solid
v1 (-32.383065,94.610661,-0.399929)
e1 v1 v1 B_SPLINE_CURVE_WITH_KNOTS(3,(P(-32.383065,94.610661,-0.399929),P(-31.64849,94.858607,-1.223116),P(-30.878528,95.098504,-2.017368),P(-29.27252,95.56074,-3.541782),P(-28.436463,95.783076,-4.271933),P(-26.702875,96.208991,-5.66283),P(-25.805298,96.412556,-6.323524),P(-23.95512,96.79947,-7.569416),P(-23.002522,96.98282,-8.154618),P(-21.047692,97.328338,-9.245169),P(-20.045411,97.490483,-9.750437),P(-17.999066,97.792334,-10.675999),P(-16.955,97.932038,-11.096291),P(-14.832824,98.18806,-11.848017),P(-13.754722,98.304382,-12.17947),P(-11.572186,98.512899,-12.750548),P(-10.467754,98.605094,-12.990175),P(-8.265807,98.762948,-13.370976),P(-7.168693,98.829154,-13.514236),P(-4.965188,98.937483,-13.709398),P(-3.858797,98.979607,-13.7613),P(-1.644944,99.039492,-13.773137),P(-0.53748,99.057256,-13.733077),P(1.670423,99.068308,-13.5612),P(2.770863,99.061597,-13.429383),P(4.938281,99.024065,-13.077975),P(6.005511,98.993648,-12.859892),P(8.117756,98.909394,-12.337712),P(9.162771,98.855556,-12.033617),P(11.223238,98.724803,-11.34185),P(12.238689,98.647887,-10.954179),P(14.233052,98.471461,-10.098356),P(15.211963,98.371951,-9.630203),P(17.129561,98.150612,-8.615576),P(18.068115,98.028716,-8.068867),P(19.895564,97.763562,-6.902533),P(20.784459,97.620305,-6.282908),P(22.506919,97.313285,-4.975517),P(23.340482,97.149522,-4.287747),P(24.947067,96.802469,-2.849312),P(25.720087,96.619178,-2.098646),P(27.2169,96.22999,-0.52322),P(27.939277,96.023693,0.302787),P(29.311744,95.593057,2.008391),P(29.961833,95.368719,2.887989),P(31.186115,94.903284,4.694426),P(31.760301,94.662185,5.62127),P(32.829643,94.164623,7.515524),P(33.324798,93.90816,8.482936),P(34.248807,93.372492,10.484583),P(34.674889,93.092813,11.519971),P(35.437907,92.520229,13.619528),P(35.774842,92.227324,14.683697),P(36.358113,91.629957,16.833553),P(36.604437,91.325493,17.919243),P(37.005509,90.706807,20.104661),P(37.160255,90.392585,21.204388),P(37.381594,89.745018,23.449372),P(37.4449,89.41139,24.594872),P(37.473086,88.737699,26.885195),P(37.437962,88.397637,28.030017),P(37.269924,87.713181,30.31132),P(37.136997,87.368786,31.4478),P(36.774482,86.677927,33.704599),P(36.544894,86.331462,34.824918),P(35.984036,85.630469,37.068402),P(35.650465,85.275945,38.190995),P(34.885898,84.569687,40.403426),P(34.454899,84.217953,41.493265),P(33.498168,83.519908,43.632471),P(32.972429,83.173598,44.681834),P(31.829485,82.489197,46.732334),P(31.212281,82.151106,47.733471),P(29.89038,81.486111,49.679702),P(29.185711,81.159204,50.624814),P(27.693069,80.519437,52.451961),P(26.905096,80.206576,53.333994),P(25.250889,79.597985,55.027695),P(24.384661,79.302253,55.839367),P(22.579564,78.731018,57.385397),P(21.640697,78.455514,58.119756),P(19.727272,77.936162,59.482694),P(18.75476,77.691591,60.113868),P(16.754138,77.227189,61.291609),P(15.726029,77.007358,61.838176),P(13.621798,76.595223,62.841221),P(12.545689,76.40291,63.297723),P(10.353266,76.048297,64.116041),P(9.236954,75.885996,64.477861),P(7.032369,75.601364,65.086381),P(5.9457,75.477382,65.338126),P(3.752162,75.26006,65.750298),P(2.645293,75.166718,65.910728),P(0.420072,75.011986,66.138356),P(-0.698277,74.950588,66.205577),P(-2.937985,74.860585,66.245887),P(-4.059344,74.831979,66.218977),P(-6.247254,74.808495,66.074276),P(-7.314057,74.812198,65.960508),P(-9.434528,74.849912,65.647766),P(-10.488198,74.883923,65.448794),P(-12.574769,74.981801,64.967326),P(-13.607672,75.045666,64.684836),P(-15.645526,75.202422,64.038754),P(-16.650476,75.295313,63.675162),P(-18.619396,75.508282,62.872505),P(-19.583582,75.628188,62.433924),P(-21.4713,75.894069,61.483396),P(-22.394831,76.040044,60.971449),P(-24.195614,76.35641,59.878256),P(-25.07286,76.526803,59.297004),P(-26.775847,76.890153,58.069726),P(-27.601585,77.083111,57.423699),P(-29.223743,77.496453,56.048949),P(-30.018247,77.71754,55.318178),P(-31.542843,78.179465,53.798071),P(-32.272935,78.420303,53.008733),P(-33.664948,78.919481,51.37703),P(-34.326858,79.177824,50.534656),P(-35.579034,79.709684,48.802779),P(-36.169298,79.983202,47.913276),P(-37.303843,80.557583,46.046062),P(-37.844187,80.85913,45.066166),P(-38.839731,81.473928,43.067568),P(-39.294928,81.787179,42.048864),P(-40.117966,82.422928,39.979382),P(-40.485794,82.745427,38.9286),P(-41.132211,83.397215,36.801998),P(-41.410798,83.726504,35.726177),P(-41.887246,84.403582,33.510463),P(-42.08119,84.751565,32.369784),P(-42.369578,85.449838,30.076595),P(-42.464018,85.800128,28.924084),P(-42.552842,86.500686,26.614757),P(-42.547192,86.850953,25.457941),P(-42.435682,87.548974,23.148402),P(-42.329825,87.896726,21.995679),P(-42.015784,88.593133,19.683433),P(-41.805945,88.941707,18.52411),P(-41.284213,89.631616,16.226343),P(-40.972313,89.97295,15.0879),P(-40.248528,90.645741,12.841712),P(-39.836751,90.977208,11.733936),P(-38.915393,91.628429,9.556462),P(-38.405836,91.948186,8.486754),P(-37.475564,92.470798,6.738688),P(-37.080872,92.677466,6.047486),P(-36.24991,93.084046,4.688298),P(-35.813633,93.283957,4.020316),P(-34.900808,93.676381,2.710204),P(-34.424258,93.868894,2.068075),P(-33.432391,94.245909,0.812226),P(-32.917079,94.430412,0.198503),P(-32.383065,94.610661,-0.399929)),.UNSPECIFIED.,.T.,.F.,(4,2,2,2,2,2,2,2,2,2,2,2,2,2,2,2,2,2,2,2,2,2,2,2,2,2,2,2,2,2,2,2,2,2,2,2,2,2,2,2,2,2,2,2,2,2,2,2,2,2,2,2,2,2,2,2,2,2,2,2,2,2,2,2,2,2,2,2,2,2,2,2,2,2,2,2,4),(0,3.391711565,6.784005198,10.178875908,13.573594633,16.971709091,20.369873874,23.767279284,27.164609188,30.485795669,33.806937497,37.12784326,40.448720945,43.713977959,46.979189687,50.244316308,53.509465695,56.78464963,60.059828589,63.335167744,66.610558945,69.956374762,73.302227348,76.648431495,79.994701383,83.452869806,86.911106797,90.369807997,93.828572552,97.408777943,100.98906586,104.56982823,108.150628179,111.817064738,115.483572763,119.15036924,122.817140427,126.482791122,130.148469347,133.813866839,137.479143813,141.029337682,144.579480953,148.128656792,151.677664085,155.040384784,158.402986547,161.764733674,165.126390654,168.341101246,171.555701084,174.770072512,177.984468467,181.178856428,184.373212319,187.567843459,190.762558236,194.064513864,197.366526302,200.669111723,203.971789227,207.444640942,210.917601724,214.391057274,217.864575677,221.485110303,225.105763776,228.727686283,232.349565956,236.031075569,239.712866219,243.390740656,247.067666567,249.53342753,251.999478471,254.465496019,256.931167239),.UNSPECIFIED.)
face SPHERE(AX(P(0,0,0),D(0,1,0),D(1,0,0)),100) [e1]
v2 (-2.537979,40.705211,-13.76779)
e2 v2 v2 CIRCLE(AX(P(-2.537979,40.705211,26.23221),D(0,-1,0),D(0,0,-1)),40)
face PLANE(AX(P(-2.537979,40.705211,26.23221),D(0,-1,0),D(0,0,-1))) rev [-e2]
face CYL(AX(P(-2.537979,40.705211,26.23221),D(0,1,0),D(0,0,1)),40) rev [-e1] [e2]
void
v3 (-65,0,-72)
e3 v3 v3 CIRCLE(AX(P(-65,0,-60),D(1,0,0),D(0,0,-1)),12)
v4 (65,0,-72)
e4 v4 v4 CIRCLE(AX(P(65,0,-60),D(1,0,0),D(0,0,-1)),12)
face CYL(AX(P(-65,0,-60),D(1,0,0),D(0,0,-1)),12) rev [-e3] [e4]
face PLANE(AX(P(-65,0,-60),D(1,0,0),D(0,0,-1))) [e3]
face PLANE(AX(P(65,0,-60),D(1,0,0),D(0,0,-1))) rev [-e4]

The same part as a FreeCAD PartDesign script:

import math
import FreeCAD as App
import Part
import Sketcher
from FreeCAD import Vector
Q = App.Units.Quantity

doc = App.newDocument("Part")
body = doc.addObject("PartDesign::Body", "Body")

# Sketch on XY plane
sketch1 = doc.addObject("Sketcher::SketchObject", "Sketch")
body.addObject(sketch1)
sketch1.AttachmentSupport = (doc.XY_Plane, [""])
sketch1.MapMode = "FlatFace"
sketch1.addGeometry([
    Part.LineSegment(Vector(0, -100, 0), Vector(0, 100, 0)),
    Part.ArcOfCircle(Part.Circle(Vector(0, 0, 0), Vector(0, 0, 1), 100), math.radians(90), math.radians(270)),
], False)
sketch1.addConstraint([
    Sketcher.Constraint("Coincident", 0, 1, 1, 2),
    Sketcher.Constraint("Coincident", 1, 1, 0, 2),
    Sketcher.Constraint("Vertical", 0),
    Sketcher.Constraint("Coincident", 1, 3, -1, 1),
    Sketcher.Constraint("PointOnObject", 0, 1, -2),
    Sketcher.Constraint("Radius", 1, Q("100 mm")),
])
revolution = doc.addObject("PartDesign::Revolution", "Revolution")
body.addObject(revolution)
revolution.Profile = sketch1
revolution.ReferenceAxis = (sketch1, ["V_Axis"])
revolution.Angle = 360

# Sketch on XZ plane
sketch2 = doc.addObject("Sketcher::SketchObject", "Sketch001")
body.addObject(sketch2)
sketch2.AttachmentSupport = (doc.XZ_Plane, [""])
sketch2.MapMode = "FlatFace"
sketch2.AttachmentOffset = App.Placement(Vector(0, 0, -100), App.Rotation())
sketch2.addGeometry(Part.Circle(Vector(-3, 26, 0), Vector(0, 0, 1), 40), False)
sketch2.addConstraint([
    Sketcher.Constraint("Diameter", 0, Q("80 mm")),
    Sketcher.Constraint("DistanceX", 0, 3, -1, 1, Q("2.537979 mm")),
    Sketcher.Constraint("DistanceY", -1, 1, 0, 3, Q("26.23221 mm")),
])
pocket1 = doc.addObject("PartDesign::Pocket", "Pocket")
body.addObject(pocket1)
pocket1.Profile = sketch2
pocket1.Length = 59.294789
pocket1.Reversed = True

# Sketch on YZ plane
sketch3 = doc.addObject("Sketcher::SketchObject", "Sketch002")
body.addObject(sketch3)
sketch3.AttachmentSupport = (doc.YZ_Plane, [""])
sketch3.MapMode = "FlatFace"
sketch3.addGeometry(Part.Circle(Vector(0, -60, 0), Vector(0, 0, 1), 12), False)
sketch3.addConstraint([
    Sketcher.Constraint("PointOnObject", 0, 3, -2),
    Sketcher.Constraint("Diameter", 0, Q("24 mm")),
    Sketcher.Constraint("DistanceY", 0, 3, -1, 1, Q("60 mm")),
])
pocket2 = doc.addObject("PartDesign::Pocket", "Pocket001")
body.addObject(pocket2)
pocket2.Profile = sketch3
pocket2.Length = 130
pocket2.Midplane = True

doc.recompute()
